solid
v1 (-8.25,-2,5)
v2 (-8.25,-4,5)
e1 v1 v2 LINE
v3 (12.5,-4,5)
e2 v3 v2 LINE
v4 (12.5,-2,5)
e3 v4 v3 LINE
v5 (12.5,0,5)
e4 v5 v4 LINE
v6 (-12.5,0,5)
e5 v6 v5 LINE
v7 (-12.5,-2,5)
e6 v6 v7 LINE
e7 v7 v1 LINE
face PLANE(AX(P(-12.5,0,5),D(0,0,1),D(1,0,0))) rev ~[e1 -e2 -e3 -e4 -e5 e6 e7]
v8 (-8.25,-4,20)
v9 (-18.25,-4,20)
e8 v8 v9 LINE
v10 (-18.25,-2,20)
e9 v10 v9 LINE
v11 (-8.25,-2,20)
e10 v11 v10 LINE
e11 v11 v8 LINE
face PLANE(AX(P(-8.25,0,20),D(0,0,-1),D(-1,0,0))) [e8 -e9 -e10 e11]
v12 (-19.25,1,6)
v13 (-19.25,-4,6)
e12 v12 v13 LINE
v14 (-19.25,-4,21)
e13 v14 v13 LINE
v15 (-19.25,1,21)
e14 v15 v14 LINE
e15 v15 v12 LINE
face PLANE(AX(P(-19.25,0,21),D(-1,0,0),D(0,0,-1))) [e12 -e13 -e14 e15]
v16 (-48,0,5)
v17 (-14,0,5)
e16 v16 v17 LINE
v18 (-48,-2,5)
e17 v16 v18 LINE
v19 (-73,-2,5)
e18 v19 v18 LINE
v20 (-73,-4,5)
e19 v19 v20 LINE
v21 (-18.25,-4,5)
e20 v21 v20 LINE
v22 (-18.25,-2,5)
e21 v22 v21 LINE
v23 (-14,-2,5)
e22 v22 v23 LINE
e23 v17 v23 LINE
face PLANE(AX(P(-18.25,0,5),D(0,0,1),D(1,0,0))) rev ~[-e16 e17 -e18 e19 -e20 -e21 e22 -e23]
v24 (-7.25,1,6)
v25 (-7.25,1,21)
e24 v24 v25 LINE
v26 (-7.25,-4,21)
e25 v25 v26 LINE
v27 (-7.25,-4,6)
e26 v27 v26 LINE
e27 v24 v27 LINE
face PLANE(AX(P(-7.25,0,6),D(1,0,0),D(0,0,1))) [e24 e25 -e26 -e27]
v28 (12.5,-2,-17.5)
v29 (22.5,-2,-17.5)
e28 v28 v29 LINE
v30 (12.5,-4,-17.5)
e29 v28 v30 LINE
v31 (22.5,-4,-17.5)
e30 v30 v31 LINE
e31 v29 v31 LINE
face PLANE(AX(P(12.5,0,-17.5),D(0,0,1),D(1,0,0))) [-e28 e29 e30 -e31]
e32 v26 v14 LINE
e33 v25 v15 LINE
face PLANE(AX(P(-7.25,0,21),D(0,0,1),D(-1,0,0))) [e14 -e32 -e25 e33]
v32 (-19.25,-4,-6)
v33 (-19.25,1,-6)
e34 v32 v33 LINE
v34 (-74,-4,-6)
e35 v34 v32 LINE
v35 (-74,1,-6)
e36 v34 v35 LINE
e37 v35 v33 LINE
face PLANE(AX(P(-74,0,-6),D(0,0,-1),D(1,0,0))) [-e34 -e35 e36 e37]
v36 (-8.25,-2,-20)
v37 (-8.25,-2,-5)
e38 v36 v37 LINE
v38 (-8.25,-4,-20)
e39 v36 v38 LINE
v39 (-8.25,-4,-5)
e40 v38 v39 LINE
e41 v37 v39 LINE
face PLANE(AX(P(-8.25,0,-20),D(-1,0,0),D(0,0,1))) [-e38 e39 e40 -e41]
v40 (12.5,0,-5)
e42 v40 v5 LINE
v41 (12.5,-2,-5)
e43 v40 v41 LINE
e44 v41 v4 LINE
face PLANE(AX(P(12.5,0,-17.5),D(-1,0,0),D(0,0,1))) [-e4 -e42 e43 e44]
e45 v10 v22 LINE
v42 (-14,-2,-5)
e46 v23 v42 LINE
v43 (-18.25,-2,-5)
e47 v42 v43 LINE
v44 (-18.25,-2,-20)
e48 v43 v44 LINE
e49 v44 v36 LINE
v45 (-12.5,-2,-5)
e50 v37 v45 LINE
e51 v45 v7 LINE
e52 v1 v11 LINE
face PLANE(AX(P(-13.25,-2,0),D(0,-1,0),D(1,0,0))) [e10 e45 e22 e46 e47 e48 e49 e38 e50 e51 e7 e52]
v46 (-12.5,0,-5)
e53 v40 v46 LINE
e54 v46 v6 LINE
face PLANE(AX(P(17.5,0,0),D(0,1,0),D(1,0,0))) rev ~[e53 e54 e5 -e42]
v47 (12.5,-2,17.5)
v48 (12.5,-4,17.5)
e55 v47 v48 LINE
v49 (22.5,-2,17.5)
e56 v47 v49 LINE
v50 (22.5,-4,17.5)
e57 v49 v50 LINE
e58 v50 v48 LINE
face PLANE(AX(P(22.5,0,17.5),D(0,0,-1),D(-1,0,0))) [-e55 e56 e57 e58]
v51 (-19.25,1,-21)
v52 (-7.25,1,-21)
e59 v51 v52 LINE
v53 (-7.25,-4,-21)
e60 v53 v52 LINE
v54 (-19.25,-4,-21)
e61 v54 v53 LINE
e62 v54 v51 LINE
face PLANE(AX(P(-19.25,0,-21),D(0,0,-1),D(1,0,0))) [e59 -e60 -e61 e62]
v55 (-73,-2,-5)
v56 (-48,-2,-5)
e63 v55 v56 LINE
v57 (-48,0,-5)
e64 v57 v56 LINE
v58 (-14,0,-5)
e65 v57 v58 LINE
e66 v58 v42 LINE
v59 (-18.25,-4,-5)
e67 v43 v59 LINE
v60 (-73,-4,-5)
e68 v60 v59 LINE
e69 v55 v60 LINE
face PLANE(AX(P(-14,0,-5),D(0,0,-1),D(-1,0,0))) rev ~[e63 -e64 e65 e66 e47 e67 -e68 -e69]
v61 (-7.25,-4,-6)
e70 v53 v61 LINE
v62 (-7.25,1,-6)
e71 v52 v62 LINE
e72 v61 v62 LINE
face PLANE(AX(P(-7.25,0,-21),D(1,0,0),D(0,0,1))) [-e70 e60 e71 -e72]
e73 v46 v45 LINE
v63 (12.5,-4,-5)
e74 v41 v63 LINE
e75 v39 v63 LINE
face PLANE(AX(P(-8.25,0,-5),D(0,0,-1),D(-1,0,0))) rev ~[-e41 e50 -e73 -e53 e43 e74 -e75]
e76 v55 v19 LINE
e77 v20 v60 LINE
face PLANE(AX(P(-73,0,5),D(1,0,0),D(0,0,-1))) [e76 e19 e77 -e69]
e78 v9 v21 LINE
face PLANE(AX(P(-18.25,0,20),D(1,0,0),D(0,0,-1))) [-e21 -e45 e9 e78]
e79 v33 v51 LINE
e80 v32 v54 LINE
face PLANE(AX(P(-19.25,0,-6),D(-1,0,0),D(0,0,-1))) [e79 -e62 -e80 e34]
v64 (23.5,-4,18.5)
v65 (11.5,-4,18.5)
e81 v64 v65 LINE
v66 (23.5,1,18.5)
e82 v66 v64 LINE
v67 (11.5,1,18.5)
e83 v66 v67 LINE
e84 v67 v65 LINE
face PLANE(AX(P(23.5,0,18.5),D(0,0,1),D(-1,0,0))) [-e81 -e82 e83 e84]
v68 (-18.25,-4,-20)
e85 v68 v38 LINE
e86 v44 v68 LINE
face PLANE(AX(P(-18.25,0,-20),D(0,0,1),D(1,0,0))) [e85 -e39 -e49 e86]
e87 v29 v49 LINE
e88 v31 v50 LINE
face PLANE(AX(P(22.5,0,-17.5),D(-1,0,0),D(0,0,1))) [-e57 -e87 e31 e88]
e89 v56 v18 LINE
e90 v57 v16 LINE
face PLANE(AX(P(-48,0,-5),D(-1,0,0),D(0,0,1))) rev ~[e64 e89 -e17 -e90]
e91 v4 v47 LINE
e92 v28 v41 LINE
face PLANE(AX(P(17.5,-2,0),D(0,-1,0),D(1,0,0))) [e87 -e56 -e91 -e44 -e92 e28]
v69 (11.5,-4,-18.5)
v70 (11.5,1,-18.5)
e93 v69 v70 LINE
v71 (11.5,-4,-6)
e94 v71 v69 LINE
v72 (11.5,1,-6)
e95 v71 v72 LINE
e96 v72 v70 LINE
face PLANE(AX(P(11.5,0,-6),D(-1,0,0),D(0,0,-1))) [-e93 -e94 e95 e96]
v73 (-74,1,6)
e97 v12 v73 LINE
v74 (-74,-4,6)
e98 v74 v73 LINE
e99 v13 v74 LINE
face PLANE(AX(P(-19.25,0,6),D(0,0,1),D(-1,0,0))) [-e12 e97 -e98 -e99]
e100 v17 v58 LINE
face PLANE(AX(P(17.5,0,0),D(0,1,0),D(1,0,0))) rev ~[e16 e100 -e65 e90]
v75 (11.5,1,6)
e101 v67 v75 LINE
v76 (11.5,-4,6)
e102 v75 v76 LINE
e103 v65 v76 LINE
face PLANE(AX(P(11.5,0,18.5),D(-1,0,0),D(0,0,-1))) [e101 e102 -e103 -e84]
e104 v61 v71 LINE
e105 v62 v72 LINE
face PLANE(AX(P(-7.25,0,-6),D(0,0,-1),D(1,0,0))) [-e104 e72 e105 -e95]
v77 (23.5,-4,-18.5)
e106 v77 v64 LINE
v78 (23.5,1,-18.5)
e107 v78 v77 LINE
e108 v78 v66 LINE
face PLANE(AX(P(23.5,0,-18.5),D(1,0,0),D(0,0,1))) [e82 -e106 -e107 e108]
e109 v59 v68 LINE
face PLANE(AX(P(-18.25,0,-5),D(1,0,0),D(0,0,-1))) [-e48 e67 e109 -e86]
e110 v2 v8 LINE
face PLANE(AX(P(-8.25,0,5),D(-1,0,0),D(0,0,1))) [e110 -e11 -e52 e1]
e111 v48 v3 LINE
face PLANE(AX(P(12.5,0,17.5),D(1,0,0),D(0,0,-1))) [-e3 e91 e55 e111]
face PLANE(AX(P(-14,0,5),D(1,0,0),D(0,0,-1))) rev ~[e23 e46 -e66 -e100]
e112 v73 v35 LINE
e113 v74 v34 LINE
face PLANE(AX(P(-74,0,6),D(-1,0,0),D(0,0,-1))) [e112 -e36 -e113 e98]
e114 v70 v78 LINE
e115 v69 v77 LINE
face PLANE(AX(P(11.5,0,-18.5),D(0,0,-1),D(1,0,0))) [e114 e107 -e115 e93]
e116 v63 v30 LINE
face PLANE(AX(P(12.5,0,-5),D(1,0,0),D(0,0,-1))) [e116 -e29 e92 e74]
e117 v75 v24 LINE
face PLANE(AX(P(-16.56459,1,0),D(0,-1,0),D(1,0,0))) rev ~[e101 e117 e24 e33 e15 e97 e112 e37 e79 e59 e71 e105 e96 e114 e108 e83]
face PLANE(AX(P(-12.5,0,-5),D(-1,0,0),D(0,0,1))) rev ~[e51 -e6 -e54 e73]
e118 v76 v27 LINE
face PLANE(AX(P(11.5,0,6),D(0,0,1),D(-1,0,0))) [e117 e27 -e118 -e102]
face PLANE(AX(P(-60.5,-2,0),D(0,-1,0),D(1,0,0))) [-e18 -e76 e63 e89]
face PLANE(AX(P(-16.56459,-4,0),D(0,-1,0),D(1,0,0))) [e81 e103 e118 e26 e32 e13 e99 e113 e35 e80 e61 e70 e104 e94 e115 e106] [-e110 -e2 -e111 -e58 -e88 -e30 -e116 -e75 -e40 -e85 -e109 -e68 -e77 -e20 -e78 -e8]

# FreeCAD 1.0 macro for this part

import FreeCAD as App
import Part
import Sketcher

doc = App.newDocument("Part")
body = doc.addObject("PartDesign::Body", "Body")

# Sketch on XZ plane
sketch1 = body.newObject("Sketcher::SketchObject", "Sketch")
sketch1.AttachmentSupport = (doc.getObject("XZ_Plane"), [""])
sketch1.MapMode = "FlatFace"
sketch1.addGeometry([
    Part.LineSegment(App.Vector(12, 5, 0), App.Vector(12, 18, 0)),  # 0
    Part.LineSegment(App.Vector(12, 18, 0), App.Vector(22, 18, 0)),  # 1
    Part.LineSegment(App.Vector(22, 18, 0), App.Vector(22, -18, 0)),  # 2
    Part.LineSegment(App.Vector(22, -18, 0), App.Vector(12, -18, 0)),  # 3
    Part.LineSegment(App.Vector(12, -18, 0), App.Vector(12, -5, 0)),  # 4
    Part.LineSegment(App.Vector(12, -5, 0), App.Vector(-8, -5, 0)),  # 5
    Part.LineSegment(App.Vector(-8, -5, 0), App.Vector(-8, -20, 0)),  # 6
    Part.LineSegment(App.Vector(-8, -20, 0), App.Vector(-18, -20, 0)),  # 7
    Part.LineSegment(App.Vector(-18, -20, 0), App.Vector(-18, -5, 0)),  # 8
    Part.LineSegment(App.Vector(-18, -5, 0), App.Vector(-73, -5, 0)),  # 9
    Part.LineSegment(App.Vector(-73, -5, 0), App.Vector(-73, 5, 0)),  # 10
    Part.LineSegment(App.Vector(-73, 5, 0), App.Vector(-18, 5, 0)),  # 11
    Part.LineSegment(App.Vector(-18, 5, 0), App.Vector(-18, 20, 0)),  # 12
    Part.LineSegment(App.Vector(-18, 20, 0), App.Vector(-8, 20, 0)),  # 13
    Part.LineSegment(App.Vector(-8, 20, 0), App.Vector(-8, 5, 0)),  # 14
    Part.LineSegment(App.Vector(-8, 5, 0), App.Vector(12, 5, 0)),  # 15
], False)
sketch1.addConstraint([
    Sketcher.Constraint("Coincident", 0, 2, 1, 1),
    Sketcher.Constraint("Coincident", 1, 2, 2, 1),
    Sketcher.Constraint("Coincident", 2, 2, 3, 1),
    Sketcher.Constraint("Coincident", 3, 2, 4, 1),
    Sketcher.Constraint("Coincident", 4, 2, 5, 1),
    Sketcher.Constraint("Coincident", 5, 2, 6, 1),
    Sketcher.Constraint("Coincident", 6, 2, 7, 1),
    Sketcher.Constraint("Coincident", 7, 2, 8, 1),
    Sketcher.Constraint("Coincident", 8, 2, 9, 1),
    Sketcher.Constraint("Coincident", 9, 2, 10, 1),
    Sketcher.Constraint("Coincident", 10, 2, 11, 1),
    Sketcher.Constraint("Coincident", 11, 2, 12, 1),
    Sketcher.Constraint("Coincident", 12, 2, 13, 1),
    Sketcher.Constraint("Coincident", 13, 2, 14, 1),
    Sketcher.Constraint("Coincident", 14, 2, 15, 1),
    Sketcher.Constraint("Coincident", 15, 2, 0, 1),
    Sketcher.Constraint("Vertical", 0),
    Sketcher.Constraint("Horizontal", 1),
    Sketcher.Constraint("Vertical", 2),
    Sketcher.Constraint("Horizontal", 3),
    Sketcher.Constraint("Vertical", 4),
    Sketcher.Constraint("Horizontal", 5),
    Sketcher.Constraint("Vertical", 6),
    Sketcher.Constraint("Horizontal", 7),
    Sketcher.Constraint("Vertical", 8),
    Sketcher.Constraint("Horizontal", 9),
    Sketcher.Constraint("Vertical", 10),
    Sketcher.Constraint("Horizontal", 11),
    Sketcher.Constraint("Vertical", 12),
    Sketcher.Constraint("Horizontal", 13),
    Sketcher.Constraint("Vertical", 14),
    Sketcher.Constraint("Horizontal", 15),
    Sketcher.Constraint("Symmetric", 0, 2, 3, 2, -1),
    Sketcher.Constraint("Symmetric", 8, 2, 11, 2, -1),
    Sketcher.Constraint("Symmetric", 6, 2, 13, 2, -1),
    Sketcher.Constraint("Horizontal", 5, 2, 8, 2),
    Sketcher.Constraint("Horizontal", 11, 2, 14, 2),
    Sketcher.Constraint("Equal", 3, 7),
    Sketcher.Constraint("Equal", 13, 10),
    Sketcher.Constraint("DistanceX", 1, 1, 1, 2, 10.0),
    Sketcher.Constraint("DistanceY", 2, 2, 2, 1, 35.0),
    Sketcher.Constraint("DistanceY", 6, 2, 6, 1, 15.0),
    Sketcher.Constraint("DistanceX", 9, 2, -1, 1, 73.0),
    Sketcher.Constraint("DistanceX", 5, 2, 5, 1, 20.75),
    Sketcher.Constraint("DistanceX", 9, 2, 9, 1, 54.75),
])
pad1 = body.newObject("PartDesign::Pad", "Pad")
pad1.Profile = sketch1
pad1.Length = 1
pad1.Reversed = True

# Sketch on XZ plane
sketch2 = body.newObject("Sketcher::SketchObject", "Sketch001")
sketch2.AttachmentSupport = (doc.getObject("XZ_Plane"), [""])
sketch2.MapMode = "FlatFace"
sketch2.addGeometry([
    Part.LineSegment(App.Vector(12, -18, 0), App.Vector(24, -18, 0)),  # 0
    Part.LineSegment(App.Vector(24, -18, 0), App.Vector(24, 18, 0)),  # 1
    Part.LineSegment(App.Vector(24, 18, 0), App.Vector(12, 18, 0)),  # 2
    Part.LineSegment(App.Vector(12, 18, 0), App.Vector(12, 6, 0)),  # 3
    Part.LineSegment(App.Vector(12, 6, 0), App.Vector(-7, 6, 0)),  # 4
    Part.LineSegment(App.Vector(-7, 6, 0), App.Vector(-7, 21, 0)),  # 5
    Part.LineSegment(App.Vector(-7, 21, 0), App.Vector(-19, 21, 0)),  # 6
    Part.LineSegment(App.Vector(-19, 21, 0), App.Vector(-19, 6, 0)),  # 7
    Part.LineSegment(App.Vector(-19, 6, 0), App.Vector(-74, 6, 0)),  # 8
    Part.LineSegment(App.Vector(-74, 6, 0), App.Vector(-74, -6, 0)),  # 9
    Part.LineSegment(App.Vector(-74, -6, 0), App.Vector(-19, -6, 0)),  # 10
    Part.LineSegment(App.Vector(-19, -6, 0), App.Vector(-19, -21, 0)),  # 11
    Part.LineSegment(App.Vector(-19, -21, 0), App.Vector(-7, -21, 0)),  # 12
    Part.LineSegment(App.Vector(-7, -21, 0), App.Vector(-7, -6, 0)),  # 13
    Part.LineSegment(App.Vector(-7, -6, 0), App.Vector(12, -6, 0)),  # 14
    Part.LineSegment(App.Vector(12, -6, 0), App.Vector(12, -18, 0)),  # 15
    Part.LineSegment(App.Vector(22, -18, 0), App.Vector(12, -18, 0)),  # 16
    Part.LineSegment(App.Vector(12, -18, 0), App.Vector(12, -5, 0)),  # 17
    Part.LineSegment(App.Vector(12, -5, 0), App.Vector(-8, -5, 0)),  # 18
    Part.LineSegment(App.Vector(-8, -5, 0), App.Vector(-8, -20, 0)),  # 19
    Part.LineSegment(App.Vector(-8, -20, 0), App.Vector(-18, -20, 0)),  # 20
    Part.LineSegment(App.Vector(-18, -20, 0), App.Vector(-18, -5, 0)),  # 21
    Part.LineSegment(App.Vector(-18, -5, 0), App.Vector(-73, -5, 0)),  # 22
    Part.LineSegment(App.Vector(-73, -5, 0), App.Vector(-73, 5, 0)),  # 23
    Part.LineSegment(App.Vector(-73, 5, 0), App.Vector(-18, 5, 0)),  # 24
    Part.LineSegment(App.Vector(-18, 5, 0), App.Vector(-18, 20, 0)),  # 25
    Part.LineSegment(App.Vector(-18, 20, 0), App.Vector(-8, 20, 0)),  # 26
    Part.LineSegment(App.Vector(-8, 20, 0), App.Vector(-8, 5, 0)),  # 27
    Part.LineSegment(App.Vector(-8, 5, 0), App.Vector(12, 5, 0)),  # 28
    Part.LineSegment(App.Vector(12, 5, 0), App.Vector(12, 18, 0)),  # 29
    Part.LineSegment(App.Vector(12, 18, 0), App.Vector(22, 18, 0)),  # 30
    Part.LineSegment(App.Vector(22, 18, 0), App.Vector(22, -18, 0)),  # 31
], False)
sketch2.addConstraint([
    Sketcher.Constraint("Coincident", 0, 2, 1, 1),
    Sketcher.Constraint("Coincident", 1, 2, 2, 1),
    Sketcher.Constraint("Coincident", 2, 2, 3, 1),
    Sketcher.Constraint("Coincident", 3, 2, 4, 1),
    Sketcher.Constraint("Coincident", 4, 2, 5, 1),
    Sketcher.Constraint("Coincident", 5, 2, 6, 1),
    Sketcher.Constraint("Coincident", 6, 2, 7, 1),
    Sketcher.Constraint("Coincident", 7, 2, 8, 1),
    Sketcher.Constraint("Coincident", 8, 2, 9, 1),
    Sketcher.Constraint("Coincident", 9, 2, 10, 1),
    Sketcher.Constraint("Coincident", 10, 2, 11, 1),
    Sketcher.Constraint("Coincident", 11, 2, 12, 1),
    Sketcher.Constraint("Coincident", 12, 2, 13, 1),
    Sketcher.Constraint("Coincident", 13, 2, 14, 1),
    Sketcher.Constraint("Coincident", 14, 2, 15, 1),
    Sketcher.Constraint("Coincident", 15, 2, 0, 1),
    Sketcher.Constraint("Coincident", 16, 2, 17, 1),
    Sketcher.Constraint("Coincident", 17, 2, 18, 1),
    Sketcher.Constraint("Coincident", 18, 2, 19, 1),
    Sketcher.Constraint("Coincident", 19, 2, 20, 1),
    Sketcher.Constraint("Coincident", 20, 2, 21, 1),
    Sketcher.Constraint("Coincident", 21, 2, 22, 1),
    Sketcher.Constraint("Coincident", 22, 2, 23, 1),
    Sketcher.Constraint("Coincident", 23, 2, 24, 1),
    Sketcher.Constraint("Coincident", 24, 2, 25, 1),
    Sketcher.Constraint("Coincident", 25, 2, 26, 1),
    Sketcher.Constraint("Coincident", 26, 2, 27, 1),
    Sketcher.Constraint("Coincident", 27, 2, 28, 1),
    Sketcher.Constraint("Coincident", 28, 2, 29, 1),
    Sketcher.Constraint("Coincident", 29, 2, 30, 1),
    Sketcher.Constraint("Coincident", 30, 2, 31, 1),
    Sketcher.Constraint("Coincident", 31, 2, 16, 1),
    Sketcher.Constraint("Horizontal", 0),
    Sketcher.Constraint("Vertical", 1),
    Sketcher.Constraint("Horizontal", 2),
    Sketcher.Constraint("Vertical", 3),
    Sketcher.Constraint("Horizontal", 4),
    Sketcher.Constraint("Vertical", 5),
    Sketcher.Constraint("Horizontal", 6),
    Sketcher.Constraint("Vertical", 7),
    Sketcher.Constraint("Horizontal", 8),
    Sketcher.Constraint("Vertical", 9),
    Sketcher.Constraint("Horizontal", 10),
    Sketcher.Constraint("Vertical", 11),
    Sketcher.Constraint("Horizontal", 12),
    Sketcher.Constraint("Vertical", 13),
    Sketcher.Constraint("Horizontal", 14),
    Sketcher.Constraint("Vertical", 15),
    Sketcher.Constraint("Horizontal", 16),
    Sketcher.Constraint("Vertical", 17),
    Sketcher.Constraint("Horizontal", 18),
    Sketcher.Constraint("Vertical", 19),
    Sketcher.Constraint("Horizontal", 20),
    Sketcher.Constraint("Vertical", 21),
    Sketcher.Constraint("Horizontal", 22),
    Sketcher.Constraint("Vertical", 23),
    Sketcher.Constraint("Horizontal", 24),
    Sketcher.Constraint("Vertical", 25),
    Sketcher.Constraint("Horizontal", 26),
    Sketcher.Constraint("Vertical", 27),
    Sketcher.Constraint("Horizontal", 28),
    Sketcher.Constraint("Vertical", 29),
    Sketcher.Constraint("Horizontal", 30),
    Sketcher.Constraint("Vertical", 31),
    Sketcher.Constraint("Symmetric", 7, 2, 10, 2, -1),
    Sketcher.Constraint("Symmetric", 5, 2, 12, 2, -1),
    Sketcher.Constraint("Symmetric", 3, 2, 14, 2, -1),
    Sketcher.Constraint("Symmetric", 21, 2, 24, 2, -1),
    Sketcher.Constraint("Symmetric", 19, 2, 26, 2, -1),
    Sketcher.Constraint("Symmetric", 17, 2, 28, 2, -1),
    Sketcher.Constraint("Horizontal", 4, 2, 7, 2),
    Sketcher.Constraint("Horizontal", 18, 2, 21, 2),
    Sketcher.Constraint("Equal", 2, 6),
    Sketcher.Constraint("Equal", 16, 20),
    Sketcher.Constraint("Equal", 10, 22),
    Sketcher.Constraint("Equal", 12, 9),
    Sketcher.Constraint("Equal", 3, 15),
    Sketcher.Constraint("Equal", 15, 17),
    Sketcher.Constraint("Equal", 13, 19),
    Sketcher.Constraint("Equal", 30, 23),
    Sketcher.Constraint("Equal", 17, 29),
    Sketcher.Constraint("DistanceX", 0, 1, 0, 2, 12.0),
    Sketcher.Constraint("DistanceX", 16, 2, 16, 1, 10.0),
    Sketcher.Constraint("DistanceY", 1, 1, 1, 2, 37.0),
    Sketcher.Constraint("DistanceY", 5, 1, 5, 2, 15.0),
    Sketcher.Constraint("DistanceX", 8, 2, -1, 1, 74.0),
    Sketcher.Constraint("DistanceX", 22, 2, -1, 1, 73.0),
    Sketcher.Constraint("DistanceX", 15, 2, 16, 2, 1.0),
    Sketcher.Constraint("DistanceX", 4, 2, 4, 1, 18.75),
    Sketcher.Constraint("DistanceX", 8, 2, 8, 1, 54.75),
])
pad2 = body.newObject("PartDesign::Pad", "Pad001")
pad2.Profile = sketch2
pad2.Type = "TwoLengths"
pad2.Length = 4
pad2.Length2 = 1

# Sketch on XZ plane
sketch3 = body.newObject("Sketcher::SketchObject", "Sketch002")
sketch3.AttachmentSupport = (doc.getObject("XZ_Plane"), [""])
sketch3.MapMode = "FlatFace"
sketch3.addGeometry([
    Part.LineSegment(App.Vector(-18.2, 20, 0), App.Vector(-18.2, 5, 0)),  # 0
    Part.LineSegment(App.Vector(-18.2, 5, 0), App.Vector(-14, 5, 0)),  # 1
    Part.LineSegment(App.Vector(-14, 5, 0), App.Vector(-14, -5, 0)),  # 2
    Part.LineSegment(App.Vector(-14, -5, 0), App.Vector(-18.2, -5, 0)),  # 3
    Part.LineSegment(App.Vector(-18.2, -5, 0), App.Vector(-18.2, -20, 0)),  # 4
    Part.LineSegment(App.Vector(-18.2, -20, 0), App.Vector(-8.2, -20, 0)),  # 5
    Part.LineSegment(App.Vector(-8.2, -20, 0), App.Vector(-8.2, -5, 0)),  # 6
    Part.LineSegment(App.Vector(-8.2, -5, 0), App.Vector(-12.5, -5, 0)),  # 7
    Part.LineSegment(App.Vector(-12.5, -5, 0), App.Vector(-12.5, 5, 0)),  # 8
    Part.LineSegment(App.Vector(-12.5, 5, 0), App.Vector(-8.2, 5, 0)),  # 9
    Part.LineSegment(App.Vector(-8.2, 5, 0), App.Vector(-8.2, 20, 0)),  # 10
    Part.LineSegment(App.Vector(-8.2, 20, 0), App.Vector(-18.2, 20, 0)),  # 11
    Part.LineSegment(App.Vector(-73, 5, 0), App.Vector(-73, -5, 0)),  # 12
    Part.LineSegment(App.Vector(-73, -5, 0), App.Vector(-48, -5, 0)),  # 13
    Part.LineSegment(App.Vector(-48, -5, 0), App.Vector(-48, 5, 0)),  # 14
    Part.LineSegment(App.Vector(-48, 5, 0), App.Vector(-73, 5, 0)),  # 15
    Part.LineSegment(App.Vector(12.5, 17.5, 0), App.Vector(12.5, -17.5, 0)),  # 16
    Part.LineSegment(App.Vector(12.5, -17.5, 0), App.Vector(22.5, -17.5, 0)),  # 17
    Part.LineSegment(App.Vector(22.5, -17.5, 0), App.Vector(22.5, 17.5, 0)),  # 18
    Part.LineSegment(App.Vector(22.5, 17.5, 0), App.Vector(12.5, 17.5, 0)),  # 19
], False)
sketch3.addConstraint([
    Sketcher.Constraint("Coincident", 0, 2, 1, 1),
    Sketcher.Constraint("Coincident", 1, 2, 2, 1),
    Sketcher.Constraint("Coincident", 2, 2, 3, 1),
    Sketcher.Constraint("Coincident", 3, 2, 4, 1),
    Sketcher.Constraint("Coincident", 4, 2, 5, 1),
    Sketcher.Constraint("Coincident", 5, 2, 6, 1),
    Sketcher.Constraint("Coincident", 6, 2, 7, 1),
    Sketcher.Constraint("Coincident", 7, 2, 8, 1),
    Sketcher.Constraint("Coincident", 8, 2, 9, 1),
    Sketcher.Constraint("Coincident", 9, 2, 10, 1),
    Sketcher.Constraint("Coincident", 10, 2, 11, 1),
    Sketcher.Constraint("Coincident", 11, 2, 0, 1),
    Sketcher.Constraint("Coincident", 12, 2, 13, 1),
    Sketcher.Constraint("Coincident", 13, 2, 14, 1),
    Sketcher.Constraint("Coincident", 14, 2, 15, 1),
    Sketcher.Constraint("Coincident", 15, 2, 12, 1),
    Sketcher.Constraint("Coincident", 16, 2, 17, 1),
    Sketcher.Constraint("Coincident", 17, 2, 18, 1),
    Sketcher.Constraint("Coincident", 18, 2, 19, 1),
    Sketcher.Constraint("Coincident", 19, 2, 16, 1),
    Sketcher.Constraint("Vertical", 0),
    Sketcher.Constraint("Horizontal", 1),
    Sketcher.Constraint("Vertical", 2),
    Sketcher.Constraint("Horizontal", 3),
    Sketcher.Constraint("Vertical", 4),
    Sketcher.Constraint("Horizontal", 5),
    Sketcher.Constraint("Vertical", 6),
    Sketcher.Constraint("Horizontal", 7),
    Sketcher.Constraint("Vertical", 8),
    Sketcher.Constraint("Horizontal", 9),
    Sketcher.Constraint("Vertical", 10),
    Sketcher.Constraint("Horizontal", 11),
    Sketcher.Constraint("Vertical", 12),
    Sketcher.Constraint("Horizontal", 13),
    Sketcher.Constraint("Vertical", 14),
    Sketcher.Constraint("Horizontal", 15),
    Sketcher.Constraint("Vertical", 16),
    Sketcher.Constraint("Horizontal", 17),
    Sketcher.Constraint("Vertical", 18),
    Sketcher.Constraint("Horizontal", 19),
    Sketcher.Constraint("Symmetric", 0, 2, 3, 2, -1),
    Sketcher.Constraint("Symmetric", 6, 2, 9, 2, -1),
    Sketcher.Constraint("Horizontal", 3, 2, 6, 2),
    Sketcher.Constraint("Horizontal", 7, 2, 12, 2),
    Sketcher.Constraint("Horizontal", 9, 2, 14, 2),
    Sketcher.Constraint("Equal", 3, 7),
    Sketcher.Constraint("Equal", 11, 17),
    Sketcher.Constraint("Equal", 19, 2),
    Sketcher.Constraint("Equal", 0, 4),
    Sketcher.Constraint("DistanceX", 5, 1, 5, 2, 10.0),
    Sketcher.Constraint("DistanceX", 13, 1, 13, 2, 25.0),
    Sketcher.Constraint("DistanceY", 0, 2, 0, 1, 15.0),
    Sketcher.Constraint("DistanceY", 16, 2, 16, 1, 35.0),
    Sketcher.Constraint("DistanceX", 1, 2, -1, 1, 14.0),
    Sketcher.Constraint("DistanceX", 12, 2, -1, 1, 73.0),
    Sketcher.Constraint("DistanceX", 7, 2, 16, 2, 25.0),
    Sketcher.Constraint("DistanceX", 1, 1, 1, 2, 4.25),
    Sketcher.Constraint("DistanceY", 16, 2, -1, 1, 17.5),
])
pad3 = body.newObject("PartDesign::Pad", "Pad002")
pad3.Profile = sketch3
pad3.Length = 2

doc.recompute()
